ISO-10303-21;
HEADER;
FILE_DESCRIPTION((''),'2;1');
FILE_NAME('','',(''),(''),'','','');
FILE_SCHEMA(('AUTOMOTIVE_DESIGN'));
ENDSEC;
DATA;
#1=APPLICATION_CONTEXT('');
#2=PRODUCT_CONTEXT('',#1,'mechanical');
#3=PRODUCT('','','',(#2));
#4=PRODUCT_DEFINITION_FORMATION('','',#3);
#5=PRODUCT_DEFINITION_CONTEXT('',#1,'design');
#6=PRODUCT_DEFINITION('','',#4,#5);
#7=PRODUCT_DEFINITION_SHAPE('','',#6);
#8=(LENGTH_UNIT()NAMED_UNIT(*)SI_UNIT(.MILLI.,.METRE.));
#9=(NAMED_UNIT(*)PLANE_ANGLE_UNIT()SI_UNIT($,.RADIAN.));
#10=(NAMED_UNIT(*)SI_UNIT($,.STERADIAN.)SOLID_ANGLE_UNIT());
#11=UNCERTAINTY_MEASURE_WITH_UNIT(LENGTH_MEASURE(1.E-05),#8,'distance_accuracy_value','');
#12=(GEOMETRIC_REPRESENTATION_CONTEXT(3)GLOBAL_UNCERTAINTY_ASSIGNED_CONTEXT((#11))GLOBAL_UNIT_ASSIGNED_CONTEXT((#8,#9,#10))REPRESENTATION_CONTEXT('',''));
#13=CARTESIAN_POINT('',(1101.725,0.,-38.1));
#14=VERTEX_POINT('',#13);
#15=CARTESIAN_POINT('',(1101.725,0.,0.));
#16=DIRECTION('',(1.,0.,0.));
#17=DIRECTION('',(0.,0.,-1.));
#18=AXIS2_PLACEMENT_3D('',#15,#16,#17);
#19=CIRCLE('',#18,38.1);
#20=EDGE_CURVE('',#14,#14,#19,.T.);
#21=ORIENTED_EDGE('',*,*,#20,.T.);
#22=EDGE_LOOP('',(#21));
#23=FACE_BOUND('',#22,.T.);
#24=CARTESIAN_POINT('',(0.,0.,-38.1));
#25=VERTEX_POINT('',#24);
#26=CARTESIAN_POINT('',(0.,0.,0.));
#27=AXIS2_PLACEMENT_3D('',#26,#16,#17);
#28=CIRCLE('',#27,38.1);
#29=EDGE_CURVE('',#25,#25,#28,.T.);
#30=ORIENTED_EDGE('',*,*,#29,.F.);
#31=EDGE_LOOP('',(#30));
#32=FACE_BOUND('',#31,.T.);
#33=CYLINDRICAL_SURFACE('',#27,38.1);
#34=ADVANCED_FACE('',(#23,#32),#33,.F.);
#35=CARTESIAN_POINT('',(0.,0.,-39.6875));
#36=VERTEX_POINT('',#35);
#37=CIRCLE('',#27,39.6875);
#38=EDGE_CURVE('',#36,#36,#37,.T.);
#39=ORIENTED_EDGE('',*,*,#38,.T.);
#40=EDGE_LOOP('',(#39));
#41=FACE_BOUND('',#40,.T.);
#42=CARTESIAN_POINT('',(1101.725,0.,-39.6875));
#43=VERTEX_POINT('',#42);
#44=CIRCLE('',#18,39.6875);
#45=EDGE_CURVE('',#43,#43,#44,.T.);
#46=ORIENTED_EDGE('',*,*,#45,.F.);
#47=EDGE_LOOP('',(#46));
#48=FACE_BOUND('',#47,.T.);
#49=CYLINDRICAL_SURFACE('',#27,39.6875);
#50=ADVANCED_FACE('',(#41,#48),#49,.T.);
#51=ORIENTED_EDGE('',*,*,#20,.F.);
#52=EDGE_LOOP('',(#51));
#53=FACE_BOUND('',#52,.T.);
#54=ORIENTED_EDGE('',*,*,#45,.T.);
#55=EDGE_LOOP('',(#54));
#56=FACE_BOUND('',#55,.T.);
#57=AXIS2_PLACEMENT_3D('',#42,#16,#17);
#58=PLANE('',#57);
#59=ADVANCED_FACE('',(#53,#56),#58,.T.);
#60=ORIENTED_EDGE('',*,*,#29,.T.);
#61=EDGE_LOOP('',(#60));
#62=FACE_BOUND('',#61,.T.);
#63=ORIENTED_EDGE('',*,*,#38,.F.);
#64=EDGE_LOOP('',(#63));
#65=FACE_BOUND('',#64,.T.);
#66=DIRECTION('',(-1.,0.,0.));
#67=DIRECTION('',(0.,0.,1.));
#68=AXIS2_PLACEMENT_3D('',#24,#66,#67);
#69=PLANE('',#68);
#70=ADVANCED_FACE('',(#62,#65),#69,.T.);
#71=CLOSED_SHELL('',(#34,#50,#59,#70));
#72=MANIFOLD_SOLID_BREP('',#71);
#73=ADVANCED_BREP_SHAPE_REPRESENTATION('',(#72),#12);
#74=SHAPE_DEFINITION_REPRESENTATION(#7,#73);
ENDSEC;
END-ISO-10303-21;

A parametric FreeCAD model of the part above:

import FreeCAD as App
import Part
import Sketcher

V = App.Vector
Q = App.Units.Quantity

doc = App.newDocument("Part")
body = doc.addObject("PartDesign::Body", "Body")

sketch1 = doc.addObject("Sketcher::SketchObject", "Sketch")
body.addObject(sketch1)
sketch1.AttachmentSupport = (doc.XZ_Plane, [""])
sketch1.MapMode = "FlatFace"
sketch1.addGeometry([
    Part.LineSegment(V(0, -39.7, 0), V(0, -38.1, 0)),
    Part.LineSegment(V(0, -38.1, 0), V(1101.7, -38.1, 0)),
    Part.LineSegment(V(1101.7, -38.1, 0), V(1101.7, -39.7, 0)),
    Part.LineSegment(V(1101.7, -39.7, 0), V(0, -39.7, 0)),
], False)
sketch1.addConstraint([
    Sketcher.Constraint("Coincident", 0, 2, 1, 1),
    Sketcher.Constraint("Coincident", 1, 2, 2, 1),
    Sketcher.Constraint("Coincident", 2, 2, 3, 1),
    Sketcher.Constraint("Coincident", 3, 2, 0, 1),
    Sketcher.Constraint("Vertical", 0),
    Sketcher.Constraint("Horizontal", 1),
    Sketcher.Constraint("Vertical", 2),
    Sketcher.Constraint("Horizontal", 3),
    Sketcher.Constraint("PointOnObject", 0, 2, -2),
    Sketcher.Constraint("DistanceY", 0, 2, -1, 1, Q("1.5 in")),
    Sketcher.Constraint("DistanceX", 1, 1, 1, 2, Q("43.375 in")),
    Sketcher.Constraint("DistanceY", 0, 1, 0, 2, Q("0.0625 in")),
])
revolution = doc.addObject("PartDesign::Revolution", "Revolution")
body.addObject(revolution)
revolution.Profile = sketch1
revolution.ReferenceAxis = (sketch1, ["H_Axis"])
revolution.Angle = 360

doc.recompute()
